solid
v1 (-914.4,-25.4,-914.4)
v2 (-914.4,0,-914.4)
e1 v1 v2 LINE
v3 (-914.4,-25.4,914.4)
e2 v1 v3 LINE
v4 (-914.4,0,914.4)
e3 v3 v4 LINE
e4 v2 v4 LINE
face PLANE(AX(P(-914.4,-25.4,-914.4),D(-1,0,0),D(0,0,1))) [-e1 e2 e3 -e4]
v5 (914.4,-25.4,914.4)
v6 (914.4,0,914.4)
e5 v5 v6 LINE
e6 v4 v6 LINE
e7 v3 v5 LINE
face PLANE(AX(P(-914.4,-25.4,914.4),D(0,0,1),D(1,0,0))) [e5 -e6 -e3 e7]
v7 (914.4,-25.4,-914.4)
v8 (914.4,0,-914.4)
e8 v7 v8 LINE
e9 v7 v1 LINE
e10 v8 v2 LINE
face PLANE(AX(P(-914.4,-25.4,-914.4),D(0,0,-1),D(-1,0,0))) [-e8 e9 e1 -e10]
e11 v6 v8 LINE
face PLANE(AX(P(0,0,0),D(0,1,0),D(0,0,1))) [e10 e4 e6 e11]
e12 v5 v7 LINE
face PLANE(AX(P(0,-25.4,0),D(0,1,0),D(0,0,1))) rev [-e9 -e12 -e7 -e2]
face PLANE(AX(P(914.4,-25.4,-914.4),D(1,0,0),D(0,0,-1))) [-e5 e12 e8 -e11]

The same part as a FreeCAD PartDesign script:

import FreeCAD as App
import Part
import Sketcher

V = App.Vector
Q = App.Units.Quantity


def add_polygon(sketch, points):
    """Adds a closed chain of lines whose ends are joined by coincident constraints."""
    first, n = sketch.GeometryCount, len(points)
    for a, b in zip(points, points[1:] + points[:1]):
        sketch.addGeometry(Part.LineSegment(App.Vector(*a, 0), App.Vector(*b, 0)), False)
    for i in range(n):
        sketch.addConstraint(Sketcher.Constraint("Coincident", first + i, 2, first + (i + 1) % n, 1))

doc = App.newDocument("Part")
body = doc.addObject("PartDesign::Body", "Body")

sketch1 = doc.addObject("Sketcher::SketchObject", "Sketch")
body.addObject(sketch1)
sketch1.AttachmentSupport = (doc.XZ_Plane, [""])
sketch1.MapMode = "FlatFace"
add_polygon(sketch1, [(-914, -914), (-914, 914), (914, 914), (914, -914)])
sketch1.addConstraint([
    Sketcher.Constraint("Vertical", 0),
    Sketcher.Constraint("Horizontal", 1),
    Sketcher.Constraint("Vertical", 2),
    Sketcher.Constraint("Horizontal", 3),
    Sketcher.Constraint("Symmetric", 0, 2, 2, 2, -1, 1),
    Sketcher.Constraint("Equal", 3, 0),
    Sketcher.Constraint("DistanceX", 1, 1, 1, 2, Q("72 in")),
])
pad1 = doc.addObject("PartDesign::Pad", "Pad")
body.addObject(pad1)
pad1.Profile = sketch1
pad1.Length = Q("1 in")

doc.recompute()
